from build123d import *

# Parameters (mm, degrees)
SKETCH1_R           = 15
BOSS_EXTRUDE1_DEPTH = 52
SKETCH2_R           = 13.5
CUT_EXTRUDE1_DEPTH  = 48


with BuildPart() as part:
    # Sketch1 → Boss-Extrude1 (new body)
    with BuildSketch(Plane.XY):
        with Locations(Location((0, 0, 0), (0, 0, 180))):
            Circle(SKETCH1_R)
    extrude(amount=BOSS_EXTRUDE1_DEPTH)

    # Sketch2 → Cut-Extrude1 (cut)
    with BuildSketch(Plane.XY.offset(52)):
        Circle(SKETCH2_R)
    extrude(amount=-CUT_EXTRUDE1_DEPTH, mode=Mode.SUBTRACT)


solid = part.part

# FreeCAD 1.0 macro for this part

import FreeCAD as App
import Part
import Sketcher
from FreeCAD import Vector
Q = App.Units.Quantity

doc = App.newDocument("Part")
body = doc.addObject("PartDesign::Body", "Body")

# Sketch on XY plane
sketch1 = doc.addObject("Sketcher::SketchObject", "Sketch")
body.addObject(sketch1)
sketch1.AttachmentSupport = (doc.XY_Plane, [""])
sketch1.MapMode = "FlatFace"
sketch1.addGeometry(Part.Circle(Vector(0, 0, 0), Vector(0, 0, 1), 15), False)
sketch1.addConstraint(Sketcher.Constraint("Coincident", 0, 3, -1, 1))
sketch1.addConstraint(Sketcher.Constraint("Diameter", 0, Q("30 mm")))
pad1 = doc.addObject("PartDesign::Pad", "Pad")
body.addObject(pad1)
pad1.Profile = sketch1
pad1.Length = 52

# Sketch on XY plane
sketch2 = doc.addObject("Sketcher::SketchObject", "Sketch001")
body.addObject(sketch2)
sketch2.AttachmentSupport = (doc.XY_Plane, [""])
sketch2.MapMode = "FlatFace"
sketch2.AttachmentOffset = App.Placement(Vector(0, 0, 52), App.Rotation())
sketch2.addGeometry(Part.Circle(Vector(0, 0, 0), Vector(0, 0, 1), 13.5), False)
sketch2.addConstraint(Sketcher.Constraint("Coincident", 0, 3, -1, 1))
sketch2.addConstraint(Sketcher.Constraint("Diameter", 0, Q("27 mm")))
pocket1 = doc.addObject("PartDesign::Pocket", "Pocket")
body.addObject(pocket1)
pocket1.Profile = sketch2
pocket1.Length = 48

doc.recompute()
